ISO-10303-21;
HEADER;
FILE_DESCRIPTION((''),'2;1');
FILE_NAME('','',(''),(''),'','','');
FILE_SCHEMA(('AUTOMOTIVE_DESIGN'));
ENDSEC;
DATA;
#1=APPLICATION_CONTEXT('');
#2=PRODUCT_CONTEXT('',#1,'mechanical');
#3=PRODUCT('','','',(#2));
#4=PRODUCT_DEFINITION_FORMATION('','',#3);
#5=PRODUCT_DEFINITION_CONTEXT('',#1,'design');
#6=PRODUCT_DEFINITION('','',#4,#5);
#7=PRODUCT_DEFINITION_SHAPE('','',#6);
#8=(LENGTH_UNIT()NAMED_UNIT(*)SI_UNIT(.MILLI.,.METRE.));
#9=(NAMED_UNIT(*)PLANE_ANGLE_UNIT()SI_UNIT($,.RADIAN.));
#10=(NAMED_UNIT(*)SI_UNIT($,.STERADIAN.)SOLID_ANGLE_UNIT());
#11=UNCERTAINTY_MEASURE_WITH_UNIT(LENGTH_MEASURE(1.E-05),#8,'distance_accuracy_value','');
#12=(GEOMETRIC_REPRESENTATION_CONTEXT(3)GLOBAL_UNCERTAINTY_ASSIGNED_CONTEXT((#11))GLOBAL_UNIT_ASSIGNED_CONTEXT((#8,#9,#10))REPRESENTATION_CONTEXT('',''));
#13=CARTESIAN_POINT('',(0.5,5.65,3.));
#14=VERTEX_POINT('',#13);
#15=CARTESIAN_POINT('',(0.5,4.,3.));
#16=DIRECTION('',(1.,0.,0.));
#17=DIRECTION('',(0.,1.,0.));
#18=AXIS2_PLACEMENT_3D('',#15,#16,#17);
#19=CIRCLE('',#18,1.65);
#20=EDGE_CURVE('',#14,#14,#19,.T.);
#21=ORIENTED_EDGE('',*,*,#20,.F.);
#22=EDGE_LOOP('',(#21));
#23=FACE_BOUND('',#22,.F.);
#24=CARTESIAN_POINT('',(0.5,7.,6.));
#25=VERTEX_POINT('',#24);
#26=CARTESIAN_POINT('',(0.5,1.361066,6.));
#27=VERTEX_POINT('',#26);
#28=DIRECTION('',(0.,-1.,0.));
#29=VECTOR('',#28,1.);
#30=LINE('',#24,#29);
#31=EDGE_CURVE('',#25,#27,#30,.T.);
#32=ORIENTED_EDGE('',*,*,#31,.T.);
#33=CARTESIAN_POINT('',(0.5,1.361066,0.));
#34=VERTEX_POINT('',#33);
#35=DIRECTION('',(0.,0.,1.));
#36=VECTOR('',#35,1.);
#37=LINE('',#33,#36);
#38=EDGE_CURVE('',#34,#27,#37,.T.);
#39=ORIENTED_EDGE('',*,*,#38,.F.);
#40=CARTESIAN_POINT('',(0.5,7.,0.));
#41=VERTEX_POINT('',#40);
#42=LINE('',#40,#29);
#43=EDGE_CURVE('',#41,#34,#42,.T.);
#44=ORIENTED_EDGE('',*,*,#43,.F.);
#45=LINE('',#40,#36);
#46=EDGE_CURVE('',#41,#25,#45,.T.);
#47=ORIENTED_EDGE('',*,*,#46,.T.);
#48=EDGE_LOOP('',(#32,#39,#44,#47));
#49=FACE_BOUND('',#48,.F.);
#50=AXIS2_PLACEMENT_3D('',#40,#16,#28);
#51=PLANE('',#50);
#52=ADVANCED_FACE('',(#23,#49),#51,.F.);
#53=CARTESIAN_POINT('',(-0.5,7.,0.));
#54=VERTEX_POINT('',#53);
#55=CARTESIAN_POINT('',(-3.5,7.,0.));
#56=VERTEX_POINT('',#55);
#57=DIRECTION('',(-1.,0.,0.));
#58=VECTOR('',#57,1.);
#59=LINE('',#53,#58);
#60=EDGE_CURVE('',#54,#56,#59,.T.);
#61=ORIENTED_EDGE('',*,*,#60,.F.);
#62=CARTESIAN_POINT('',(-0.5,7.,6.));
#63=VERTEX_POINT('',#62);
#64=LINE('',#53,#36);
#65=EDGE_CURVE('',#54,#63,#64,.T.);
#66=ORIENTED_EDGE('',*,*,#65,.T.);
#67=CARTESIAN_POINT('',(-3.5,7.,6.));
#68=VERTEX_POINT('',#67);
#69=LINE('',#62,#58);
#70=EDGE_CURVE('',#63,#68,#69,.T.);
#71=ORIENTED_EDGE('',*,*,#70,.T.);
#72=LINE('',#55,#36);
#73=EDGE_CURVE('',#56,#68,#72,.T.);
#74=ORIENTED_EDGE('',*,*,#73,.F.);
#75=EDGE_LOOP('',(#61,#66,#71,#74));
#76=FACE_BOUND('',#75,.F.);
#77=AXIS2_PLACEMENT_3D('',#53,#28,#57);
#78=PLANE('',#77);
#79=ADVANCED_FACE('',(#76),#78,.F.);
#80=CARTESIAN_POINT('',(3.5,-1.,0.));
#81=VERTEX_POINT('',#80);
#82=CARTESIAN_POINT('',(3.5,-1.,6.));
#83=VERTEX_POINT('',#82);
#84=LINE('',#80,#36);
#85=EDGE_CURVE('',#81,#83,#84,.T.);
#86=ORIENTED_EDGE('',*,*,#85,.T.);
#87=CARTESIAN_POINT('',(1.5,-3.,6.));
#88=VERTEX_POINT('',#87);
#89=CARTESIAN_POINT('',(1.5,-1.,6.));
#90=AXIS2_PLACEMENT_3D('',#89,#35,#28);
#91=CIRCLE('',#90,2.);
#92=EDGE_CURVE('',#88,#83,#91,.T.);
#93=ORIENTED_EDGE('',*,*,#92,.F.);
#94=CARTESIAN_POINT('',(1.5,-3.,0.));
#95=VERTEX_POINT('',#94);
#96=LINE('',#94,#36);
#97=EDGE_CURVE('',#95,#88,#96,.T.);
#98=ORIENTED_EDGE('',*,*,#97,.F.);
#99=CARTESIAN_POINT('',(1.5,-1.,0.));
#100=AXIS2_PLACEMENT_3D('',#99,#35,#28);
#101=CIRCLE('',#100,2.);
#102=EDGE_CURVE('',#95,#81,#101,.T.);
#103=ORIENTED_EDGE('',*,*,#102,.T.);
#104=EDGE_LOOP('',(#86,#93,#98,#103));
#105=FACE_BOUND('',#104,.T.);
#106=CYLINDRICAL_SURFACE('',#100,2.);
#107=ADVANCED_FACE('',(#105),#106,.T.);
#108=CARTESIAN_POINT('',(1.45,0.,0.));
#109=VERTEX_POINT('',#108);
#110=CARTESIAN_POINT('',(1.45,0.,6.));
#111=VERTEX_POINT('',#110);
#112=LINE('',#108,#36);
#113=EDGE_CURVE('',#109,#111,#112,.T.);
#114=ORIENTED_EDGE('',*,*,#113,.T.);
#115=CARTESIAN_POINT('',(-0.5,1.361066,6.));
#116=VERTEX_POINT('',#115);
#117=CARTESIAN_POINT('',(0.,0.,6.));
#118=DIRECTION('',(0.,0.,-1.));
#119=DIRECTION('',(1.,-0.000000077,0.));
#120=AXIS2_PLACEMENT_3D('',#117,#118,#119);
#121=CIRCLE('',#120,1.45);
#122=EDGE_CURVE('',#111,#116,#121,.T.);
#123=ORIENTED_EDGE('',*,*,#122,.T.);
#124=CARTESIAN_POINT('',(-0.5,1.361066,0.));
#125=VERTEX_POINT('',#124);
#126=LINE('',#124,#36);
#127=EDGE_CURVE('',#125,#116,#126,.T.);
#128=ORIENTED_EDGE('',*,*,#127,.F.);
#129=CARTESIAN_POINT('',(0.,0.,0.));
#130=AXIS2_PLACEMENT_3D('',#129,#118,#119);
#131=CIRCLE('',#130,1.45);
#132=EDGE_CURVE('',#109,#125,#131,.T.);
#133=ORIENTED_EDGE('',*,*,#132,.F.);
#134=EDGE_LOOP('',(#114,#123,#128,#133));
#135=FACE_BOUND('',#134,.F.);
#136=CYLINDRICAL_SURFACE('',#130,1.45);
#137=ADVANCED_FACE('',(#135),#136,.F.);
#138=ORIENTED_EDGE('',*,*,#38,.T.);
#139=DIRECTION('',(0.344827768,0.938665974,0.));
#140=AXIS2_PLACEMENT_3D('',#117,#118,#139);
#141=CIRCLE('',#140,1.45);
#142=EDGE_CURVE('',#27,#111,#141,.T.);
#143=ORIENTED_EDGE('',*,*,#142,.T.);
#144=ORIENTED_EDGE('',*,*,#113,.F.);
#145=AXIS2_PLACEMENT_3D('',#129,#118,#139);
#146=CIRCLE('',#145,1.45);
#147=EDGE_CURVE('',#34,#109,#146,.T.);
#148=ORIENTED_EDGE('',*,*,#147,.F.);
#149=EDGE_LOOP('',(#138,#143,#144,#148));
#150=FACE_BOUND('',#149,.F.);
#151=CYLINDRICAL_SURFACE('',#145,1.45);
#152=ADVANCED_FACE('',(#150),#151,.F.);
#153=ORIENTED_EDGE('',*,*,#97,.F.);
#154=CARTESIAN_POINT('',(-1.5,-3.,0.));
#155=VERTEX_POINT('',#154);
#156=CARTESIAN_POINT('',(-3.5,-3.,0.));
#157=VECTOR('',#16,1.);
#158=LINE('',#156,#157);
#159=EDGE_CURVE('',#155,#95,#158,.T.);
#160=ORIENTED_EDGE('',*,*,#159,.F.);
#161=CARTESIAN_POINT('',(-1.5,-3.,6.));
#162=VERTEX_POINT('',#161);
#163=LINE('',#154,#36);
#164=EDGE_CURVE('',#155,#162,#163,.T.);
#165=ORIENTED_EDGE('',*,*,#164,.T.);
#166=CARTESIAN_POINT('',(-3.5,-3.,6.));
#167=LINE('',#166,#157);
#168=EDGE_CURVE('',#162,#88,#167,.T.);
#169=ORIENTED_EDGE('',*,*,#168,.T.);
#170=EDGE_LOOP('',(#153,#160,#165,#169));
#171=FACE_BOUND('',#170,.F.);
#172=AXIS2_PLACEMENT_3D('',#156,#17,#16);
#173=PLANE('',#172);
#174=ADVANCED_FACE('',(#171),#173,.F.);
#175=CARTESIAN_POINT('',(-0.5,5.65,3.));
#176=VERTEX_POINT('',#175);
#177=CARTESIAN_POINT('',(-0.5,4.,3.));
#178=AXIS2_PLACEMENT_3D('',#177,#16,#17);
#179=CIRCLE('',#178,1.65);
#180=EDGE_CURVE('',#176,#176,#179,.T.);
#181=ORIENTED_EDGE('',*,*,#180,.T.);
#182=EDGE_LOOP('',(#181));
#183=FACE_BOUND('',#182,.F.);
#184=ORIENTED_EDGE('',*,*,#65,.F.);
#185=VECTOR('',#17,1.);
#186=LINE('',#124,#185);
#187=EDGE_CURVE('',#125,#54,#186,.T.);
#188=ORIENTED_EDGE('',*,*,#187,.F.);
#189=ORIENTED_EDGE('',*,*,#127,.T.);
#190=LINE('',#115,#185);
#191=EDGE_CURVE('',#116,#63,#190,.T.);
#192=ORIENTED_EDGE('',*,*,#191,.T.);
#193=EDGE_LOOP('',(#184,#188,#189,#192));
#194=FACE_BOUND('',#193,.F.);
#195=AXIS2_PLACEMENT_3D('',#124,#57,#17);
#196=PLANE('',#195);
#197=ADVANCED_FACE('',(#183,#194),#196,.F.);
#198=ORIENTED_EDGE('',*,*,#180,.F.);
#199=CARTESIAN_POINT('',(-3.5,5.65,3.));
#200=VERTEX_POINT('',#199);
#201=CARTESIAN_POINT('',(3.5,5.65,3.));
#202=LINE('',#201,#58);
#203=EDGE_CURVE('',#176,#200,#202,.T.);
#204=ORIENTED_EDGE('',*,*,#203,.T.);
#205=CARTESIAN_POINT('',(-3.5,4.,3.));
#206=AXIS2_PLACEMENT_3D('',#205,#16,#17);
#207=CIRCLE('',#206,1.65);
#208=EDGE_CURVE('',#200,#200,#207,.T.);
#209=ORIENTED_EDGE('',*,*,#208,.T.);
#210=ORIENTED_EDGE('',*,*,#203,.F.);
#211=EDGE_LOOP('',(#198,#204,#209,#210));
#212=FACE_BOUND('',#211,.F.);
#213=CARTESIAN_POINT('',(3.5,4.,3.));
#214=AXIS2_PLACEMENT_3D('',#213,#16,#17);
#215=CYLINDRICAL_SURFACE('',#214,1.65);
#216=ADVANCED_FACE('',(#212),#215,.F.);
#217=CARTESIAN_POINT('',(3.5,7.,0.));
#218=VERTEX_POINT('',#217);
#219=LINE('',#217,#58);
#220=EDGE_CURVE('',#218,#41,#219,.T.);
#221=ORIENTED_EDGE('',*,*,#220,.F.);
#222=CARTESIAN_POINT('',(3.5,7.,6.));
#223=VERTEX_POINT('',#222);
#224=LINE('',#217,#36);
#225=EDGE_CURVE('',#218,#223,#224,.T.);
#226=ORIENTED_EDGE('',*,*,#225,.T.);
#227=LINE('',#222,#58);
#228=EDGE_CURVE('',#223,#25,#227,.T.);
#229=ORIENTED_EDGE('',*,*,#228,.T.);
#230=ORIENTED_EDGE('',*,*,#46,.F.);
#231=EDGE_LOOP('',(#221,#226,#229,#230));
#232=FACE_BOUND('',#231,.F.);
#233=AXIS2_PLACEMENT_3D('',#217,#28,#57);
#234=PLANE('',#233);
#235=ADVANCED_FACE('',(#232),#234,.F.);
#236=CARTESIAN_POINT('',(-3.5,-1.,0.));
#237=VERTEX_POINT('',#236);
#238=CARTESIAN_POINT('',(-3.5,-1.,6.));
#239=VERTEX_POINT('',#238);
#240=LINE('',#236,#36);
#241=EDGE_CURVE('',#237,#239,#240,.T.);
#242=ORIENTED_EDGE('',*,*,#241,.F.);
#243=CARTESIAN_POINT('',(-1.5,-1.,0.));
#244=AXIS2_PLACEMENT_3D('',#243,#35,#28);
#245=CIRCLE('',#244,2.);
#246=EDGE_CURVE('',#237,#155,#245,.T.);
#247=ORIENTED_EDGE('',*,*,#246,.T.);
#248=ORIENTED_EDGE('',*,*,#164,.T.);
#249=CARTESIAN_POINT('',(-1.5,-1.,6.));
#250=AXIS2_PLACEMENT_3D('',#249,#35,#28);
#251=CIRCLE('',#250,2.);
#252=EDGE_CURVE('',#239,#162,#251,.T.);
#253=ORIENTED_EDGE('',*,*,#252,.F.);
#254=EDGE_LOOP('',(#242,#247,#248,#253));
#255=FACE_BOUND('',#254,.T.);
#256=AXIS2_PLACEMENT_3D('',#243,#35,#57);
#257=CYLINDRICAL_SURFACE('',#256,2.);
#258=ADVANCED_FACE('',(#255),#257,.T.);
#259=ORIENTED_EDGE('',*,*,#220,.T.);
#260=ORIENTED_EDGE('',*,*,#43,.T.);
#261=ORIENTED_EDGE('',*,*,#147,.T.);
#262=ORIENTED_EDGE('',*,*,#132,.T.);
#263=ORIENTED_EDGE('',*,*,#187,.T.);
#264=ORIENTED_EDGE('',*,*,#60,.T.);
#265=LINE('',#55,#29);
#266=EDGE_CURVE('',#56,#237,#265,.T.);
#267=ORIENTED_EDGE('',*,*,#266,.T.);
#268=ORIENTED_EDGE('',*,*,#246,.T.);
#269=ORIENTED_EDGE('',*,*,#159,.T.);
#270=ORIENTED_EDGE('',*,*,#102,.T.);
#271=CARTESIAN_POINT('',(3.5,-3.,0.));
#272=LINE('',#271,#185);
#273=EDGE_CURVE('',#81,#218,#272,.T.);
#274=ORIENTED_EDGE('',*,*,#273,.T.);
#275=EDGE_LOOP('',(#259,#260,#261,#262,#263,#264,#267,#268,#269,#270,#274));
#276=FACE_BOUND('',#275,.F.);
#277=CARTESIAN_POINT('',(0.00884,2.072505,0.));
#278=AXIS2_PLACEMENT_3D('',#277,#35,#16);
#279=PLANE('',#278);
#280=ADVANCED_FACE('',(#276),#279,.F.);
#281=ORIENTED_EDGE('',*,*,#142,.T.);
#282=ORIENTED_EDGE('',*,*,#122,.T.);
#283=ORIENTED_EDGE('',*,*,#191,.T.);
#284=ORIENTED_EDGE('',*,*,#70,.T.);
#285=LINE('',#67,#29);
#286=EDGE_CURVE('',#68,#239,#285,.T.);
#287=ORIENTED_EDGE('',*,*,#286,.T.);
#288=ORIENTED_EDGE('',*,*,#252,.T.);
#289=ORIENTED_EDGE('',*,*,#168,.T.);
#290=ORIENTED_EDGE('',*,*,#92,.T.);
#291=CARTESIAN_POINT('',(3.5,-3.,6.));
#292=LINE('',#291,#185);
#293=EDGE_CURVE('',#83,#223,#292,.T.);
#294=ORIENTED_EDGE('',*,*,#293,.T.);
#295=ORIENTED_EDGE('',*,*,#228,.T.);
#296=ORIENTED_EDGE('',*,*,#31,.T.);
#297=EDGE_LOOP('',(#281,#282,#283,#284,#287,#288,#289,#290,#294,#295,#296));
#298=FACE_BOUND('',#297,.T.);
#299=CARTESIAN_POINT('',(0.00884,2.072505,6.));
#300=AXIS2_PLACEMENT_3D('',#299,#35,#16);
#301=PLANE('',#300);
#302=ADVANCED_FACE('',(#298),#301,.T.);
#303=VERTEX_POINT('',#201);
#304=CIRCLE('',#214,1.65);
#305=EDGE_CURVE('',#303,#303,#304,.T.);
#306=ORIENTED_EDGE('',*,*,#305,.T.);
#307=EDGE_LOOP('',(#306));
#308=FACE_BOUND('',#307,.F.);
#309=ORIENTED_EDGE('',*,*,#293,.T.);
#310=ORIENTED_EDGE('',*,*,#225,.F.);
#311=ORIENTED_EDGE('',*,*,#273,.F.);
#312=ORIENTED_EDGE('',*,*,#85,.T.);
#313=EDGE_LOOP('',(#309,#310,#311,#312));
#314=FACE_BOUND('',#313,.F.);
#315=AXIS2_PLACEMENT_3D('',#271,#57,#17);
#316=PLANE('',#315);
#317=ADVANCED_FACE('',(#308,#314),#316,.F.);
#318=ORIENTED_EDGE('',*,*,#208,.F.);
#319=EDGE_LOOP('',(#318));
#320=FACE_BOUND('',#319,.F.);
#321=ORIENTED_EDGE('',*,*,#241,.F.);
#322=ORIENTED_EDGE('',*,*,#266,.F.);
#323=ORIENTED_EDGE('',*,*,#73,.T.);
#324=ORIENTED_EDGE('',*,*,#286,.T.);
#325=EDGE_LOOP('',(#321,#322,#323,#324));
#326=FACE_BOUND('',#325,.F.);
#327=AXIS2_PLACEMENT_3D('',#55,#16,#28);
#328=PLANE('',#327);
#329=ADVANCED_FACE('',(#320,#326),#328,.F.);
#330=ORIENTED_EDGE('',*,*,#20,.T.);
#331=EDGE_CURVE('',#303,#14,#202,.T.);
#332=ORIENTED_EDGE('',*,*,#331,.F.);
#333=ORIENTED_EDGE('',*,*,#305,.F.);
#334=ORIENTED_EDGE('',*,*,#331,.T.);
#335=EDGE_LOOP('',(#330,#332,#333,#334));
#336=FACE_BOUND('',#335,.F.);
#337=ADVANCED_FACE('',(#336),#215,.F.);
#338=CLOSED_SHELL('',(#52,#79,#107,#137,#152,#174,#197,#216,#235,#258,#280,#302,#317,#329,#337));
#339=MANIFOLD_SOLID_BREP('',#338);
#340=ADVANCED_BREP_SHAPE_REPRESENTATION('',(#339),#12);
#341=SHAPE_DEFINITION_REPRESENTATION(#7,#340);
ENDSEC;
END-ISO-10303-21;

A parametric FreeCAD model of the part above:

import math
import FreeCAD as App
import Part
import Sketcher

V = App.Vector
Q = App.Units.Quantity


def edges_at(feature, points):
    """Names of the edges that pass closest to the given points."""
    edges = feature.Shape.Edges
    near = lambda p: min(range(len(edges)), key=lambda i: edges[i].distToShape(Part.Vertex(*p))[0])
    return sorted({f"Edge{near(p) + 1}" for p in points})

doc = App.newDocument("Part")
body = doc.addObject("PartDesign::Body", "Body")

# Sketch on XY plane
sketch1 = body.newObject("Sketcher::SketchObject", "Sketch")
sketch1.AttachmentSupport = (doc.getObject("XY_Plane"), [""])
sketch1.MapMode = "FlatFace"
sketch1.addGeometry([
    Part.LineSegment(V(-0.5, 7, 0), V(-3.5, 7, 0)),  # 0
    Part.LineSegment(V(-3.5, 7, 0), V(-3.5, -3, 0)),  # 1
    Part.LineSegment(V(-3.5, -3, 0), V(3.5, -3, 0)),  # 2
    Part.LineSegment(V(3.5, -3, 0), V(3.5, 7, 0)),  # 3
    Part.LineSegment(V(3.5, 7, 0), V(0.5, 7, 0)),  # 4
    Part.LineSegment(V(0.5, 7, 0), V(0.5, 1.4, 0)),  # 5
    Part.ArcOfCircle(Part.Circle(V(0, 0, 0), V(0, 0, 1), 1.5), math.radians(0), math.radians(70)),  # 6
    Part.ArcOfCircle(Part.Circle(V(0, 0, 0), V(0, 0, 1), 1.5), math.radians(110), math.radians(360)),  # 7
    Part.LineSegment(V(-0.5, 1.4, 0), V(-0.5, 7, 0)),  # 8
], False)
sketch1.addConstraint([
    Sketcher.Constraint("Coincident", 0, 2, 1, 1),
    Sketcher.Constraint("Coincident", 1, 2, 2, 1),
    Sketcher.Constraint("Coincident", 2, 2, 3, 1),
    Sketcher.Constraint("Coincident", 3, 2, 4, 1),
    Sketcher.Constraint("Coincident", 4, 2, 5, 1),
    Sketcher.Constraint("Coincident", 5, 2, 6, 2),
    Sketcher.Constraint("Tangent", 6, 1, 7, 2),
    Sketcher.Constraint("Coincident", 7, 1, 8, 1),
    Sketcher.Constraint("Coincident", 8, 2, 0, 1),
    Sketcher.Constraint("Horizontal", 0),
    Sketcher.Constraint("Vertical", 1),
    Sketcher.Constraint("Horizontal", 2),
    Sketcher.Constraint("Vertical", 3),
    Sketcher.Constraint("Horizontal", 4),
    Sketcher.Constraint("Vertical", 5),
    Sketcher.Constraint("Vertical", 8),
    Sketcher.Constraint("Coincident", 6, 3, -1, 1),
    Sketcher.Constraint("Equal", 6, 7),
    Sketcher.Constraint("Symmetric", 0, 2, 3, 2, -2),
    Sketcher.Constraint("PointOnObject", 6, 1, -1),
    Sketcher.Constraint("Horizontal", 5, 2, 7, 1),
    Sketcher.Constraint("DistanceX", 0, 2, 0, 1, Q("3 mm")),
    Sketcher.Constraint("DistanceX", 2, 1, 2, 2, Q("7 mm")),
    Sketcher.Constraint("DistanceY", 1, 2, 1, 1, Q("10 mm")),
    Sketcher.Constraint("Radius", 6, Q("1.45 mm")),
    Sketcher.Constraint("DistanceY", -1, 1, 0, 2, Q("7 mm")),
])
pad1 = body.newObject("PartDesign::Pad", "Pad")
pad1.Profile = sketch1
pad1.Length = 6

# Sketch on YZ plane
sketch2 = body.newObject("Sketcher::SketchObject", "Sketch001")
sketch2.AttachmentSupport = (doc.getObject("YZ_Plane"), [""])
sketch2.MapMode = "FlatFace"
sketch2.AttachmentOffset = App.Placement(V(0, 0, 3.5), App.Rotation())
sketch2.addGeometry(Part.Circle(V(4, 3, 0), V(0, 0, 1), 1.6), False)
sketch2.addConstraint([
    Sketcher.Constraint("Diameter", 0, Q("3.3 mm")),
    Sketcher.Constraint("DistanceX", -1, 1, 0, 3, Q("4 mm")),
    Sketcher.Constraint("DistanceY", -1, 1, 0, 3, Q("3 mm")),
])
pocket1 = body.newObject("PartDesign::Pocket", "Pocket")
pocket1.Profile = sketch2
pocket1.Length = 25
doc.recompute()

fillet = body.newObject("PartDesign::Fillet", "Fillet")
fillet.Base = (pocket1, edges_at(pocket1, [(3.5, -3, 3), (-3.5, -3, 3)]))
fillet.Radius = 2

doc.recompute()
